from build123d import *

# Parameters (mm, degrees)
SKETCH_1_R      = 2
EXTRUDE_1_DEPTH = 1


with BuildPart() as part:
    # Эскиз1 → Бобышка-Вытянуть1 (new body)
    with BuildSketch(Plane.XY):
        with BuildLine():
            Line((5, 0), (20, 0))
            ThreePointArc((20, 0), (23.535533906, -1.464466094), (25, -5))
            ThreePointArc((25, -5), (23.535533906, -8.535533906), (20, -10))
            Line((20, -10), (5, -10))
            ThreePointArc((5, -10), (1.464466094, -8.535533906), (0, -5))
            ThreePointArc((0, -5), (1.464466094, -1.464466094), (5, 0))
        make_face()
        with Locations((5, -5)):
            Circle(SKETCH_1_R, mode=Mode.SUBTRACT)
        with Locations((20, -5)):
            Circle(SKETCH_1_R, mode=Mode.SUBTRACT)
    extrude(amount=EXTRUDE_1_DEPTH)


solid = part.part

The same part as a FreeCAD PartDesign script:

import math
import FreeCAD as App
import Part
import Sketcher
Q = App.Units.Quantity

doc = App.newDocument("Part")
params = doc.addObject("Spreadsheet::Sheet", "Params")
for row, (alias, value) in enumerate([
    ("sketch1_diameter", "4 mm"),
    ("sketch1_radius", "5 mm"),
    ("sketch1_width", "15 mm"),
    ("pad1_length", "1 mm"),
], start=1):
    params.set(f"A{row}", alias)
    params.set(f"B{row}", "=" + value)
    params.setAlias(f"B{row}", alias)

body = doc.addObject("PartDesign::Body", "Body")

# Sketch on XY plane
sketch1 = body.newObject("Sketcher::SketchObject", "Sketch")
sketch1.AttachmentSupport = (doc.getObject("XY_Plane"), [""])
sketch1.MapMode = "FlatFace"
sketch1.addGeometry([
    Part.LineSegment(App.Vector(20, 0, 0), App.Vector(5, 0, 0)),  # 0
    Part.ArcOfCircle(Part.Circle(App.Vector(5, -5, 0), App.Vector(0, 0, 1), 5), math.radians(90), math.radians(180)),  # 1
    Part.ArcOfCircle(Part.Circle(App.Vector(5, -5, 0), App.Vector(0, 0, 1), 5), math.radians(180), math.radians(270)),  # 2
    Part.LineSegment(App.Vector(5, -10, 0), App.Vector(20, -10, 0)),  # 3
    Part.ArcOfCircle(Part.Circle(App.Vector(20, -5, 0), App.Vector(0, 0, 1), 5), math.radians(-90), math.radians(0)),  # 4
    Part.ArcOfCircle(Part.Circle(App.Vector(20, -5, 0), App.Vector(0, 0, 1), 5), math.radians(0), math.radians(90)),  # 5
    Part.Circle(App.Vector(20, -5, 0), App.Vector(0, 0, 1), 2),  # 6
    Part.Circle(App.Vector(5, -5, 0), App.Vector(0, 0, 1), 2),  # 7
], False)
sketch1.addConstraint([
    Sketcher.Constraint("Tangent", 0, 2, 1, 1),
    Sketcher.Constraint("Tangent", 1, 2, 2, 1),
    Sketcher.Constraint("Tangent", 2, 2, 3, 1),
    Sketcher.Constraint("Tangent", 3, 2, 4, 1),
    Sketcher.Constraint("Tangent", 4, 2, 5, 1),
    Sketcher.Constraint("Tangent", 5, 2, 0, 1),
    Sketcher.Constraint("Horizontal", 0),
    Sketcher.Constraint("Horizontal", 3),
    Sketcher.Constraint("Coincident", 6, 3, 4, 3),
    Sketcher.Constraint("Coincident", 7, 3, 1, 3),
    Sketcher.Constraint("Equal", 1, 2),
    Sketcher.Constraint("Equal", 2, 4),
    Sketcher.Constraint("Equal", 6, 7),
    Sketcher.Constraint("PointOnObject", 0, 2, -1),
    Sketcher.Constraint("PointOnObject", 1, 2, -2),
    Sketcher.Constraint("Horizontal", 7, 3, 1, 2),
    Sketcher.Constraint("Horizontal", 1, 2, 4, 2),
    Sketcher.Constraint("Diameter", 6, Q("4 mm")),
    Sketcher.Constraint("Radius", 1, Q("5 mm")),
    Sketcher.Constraint("DistanceX", 0, 2, 0, 1, Q("15 mm")),
])
sketch1.setExpression("Constraints[17]", "Params.sketch1_diameter")
sketch1.setExpression("Constraints[18]", "Params.sketch1_radius")
sketch1.setExpression("Constraints[19]", "Params.sketch1_width")
pad1 = body.newObject("PartDesign::Pad", "Pad")
pad1.Profile = sketch1
pad1.setExpression("Length", "Params.pad1_length")

doc.recompute()
